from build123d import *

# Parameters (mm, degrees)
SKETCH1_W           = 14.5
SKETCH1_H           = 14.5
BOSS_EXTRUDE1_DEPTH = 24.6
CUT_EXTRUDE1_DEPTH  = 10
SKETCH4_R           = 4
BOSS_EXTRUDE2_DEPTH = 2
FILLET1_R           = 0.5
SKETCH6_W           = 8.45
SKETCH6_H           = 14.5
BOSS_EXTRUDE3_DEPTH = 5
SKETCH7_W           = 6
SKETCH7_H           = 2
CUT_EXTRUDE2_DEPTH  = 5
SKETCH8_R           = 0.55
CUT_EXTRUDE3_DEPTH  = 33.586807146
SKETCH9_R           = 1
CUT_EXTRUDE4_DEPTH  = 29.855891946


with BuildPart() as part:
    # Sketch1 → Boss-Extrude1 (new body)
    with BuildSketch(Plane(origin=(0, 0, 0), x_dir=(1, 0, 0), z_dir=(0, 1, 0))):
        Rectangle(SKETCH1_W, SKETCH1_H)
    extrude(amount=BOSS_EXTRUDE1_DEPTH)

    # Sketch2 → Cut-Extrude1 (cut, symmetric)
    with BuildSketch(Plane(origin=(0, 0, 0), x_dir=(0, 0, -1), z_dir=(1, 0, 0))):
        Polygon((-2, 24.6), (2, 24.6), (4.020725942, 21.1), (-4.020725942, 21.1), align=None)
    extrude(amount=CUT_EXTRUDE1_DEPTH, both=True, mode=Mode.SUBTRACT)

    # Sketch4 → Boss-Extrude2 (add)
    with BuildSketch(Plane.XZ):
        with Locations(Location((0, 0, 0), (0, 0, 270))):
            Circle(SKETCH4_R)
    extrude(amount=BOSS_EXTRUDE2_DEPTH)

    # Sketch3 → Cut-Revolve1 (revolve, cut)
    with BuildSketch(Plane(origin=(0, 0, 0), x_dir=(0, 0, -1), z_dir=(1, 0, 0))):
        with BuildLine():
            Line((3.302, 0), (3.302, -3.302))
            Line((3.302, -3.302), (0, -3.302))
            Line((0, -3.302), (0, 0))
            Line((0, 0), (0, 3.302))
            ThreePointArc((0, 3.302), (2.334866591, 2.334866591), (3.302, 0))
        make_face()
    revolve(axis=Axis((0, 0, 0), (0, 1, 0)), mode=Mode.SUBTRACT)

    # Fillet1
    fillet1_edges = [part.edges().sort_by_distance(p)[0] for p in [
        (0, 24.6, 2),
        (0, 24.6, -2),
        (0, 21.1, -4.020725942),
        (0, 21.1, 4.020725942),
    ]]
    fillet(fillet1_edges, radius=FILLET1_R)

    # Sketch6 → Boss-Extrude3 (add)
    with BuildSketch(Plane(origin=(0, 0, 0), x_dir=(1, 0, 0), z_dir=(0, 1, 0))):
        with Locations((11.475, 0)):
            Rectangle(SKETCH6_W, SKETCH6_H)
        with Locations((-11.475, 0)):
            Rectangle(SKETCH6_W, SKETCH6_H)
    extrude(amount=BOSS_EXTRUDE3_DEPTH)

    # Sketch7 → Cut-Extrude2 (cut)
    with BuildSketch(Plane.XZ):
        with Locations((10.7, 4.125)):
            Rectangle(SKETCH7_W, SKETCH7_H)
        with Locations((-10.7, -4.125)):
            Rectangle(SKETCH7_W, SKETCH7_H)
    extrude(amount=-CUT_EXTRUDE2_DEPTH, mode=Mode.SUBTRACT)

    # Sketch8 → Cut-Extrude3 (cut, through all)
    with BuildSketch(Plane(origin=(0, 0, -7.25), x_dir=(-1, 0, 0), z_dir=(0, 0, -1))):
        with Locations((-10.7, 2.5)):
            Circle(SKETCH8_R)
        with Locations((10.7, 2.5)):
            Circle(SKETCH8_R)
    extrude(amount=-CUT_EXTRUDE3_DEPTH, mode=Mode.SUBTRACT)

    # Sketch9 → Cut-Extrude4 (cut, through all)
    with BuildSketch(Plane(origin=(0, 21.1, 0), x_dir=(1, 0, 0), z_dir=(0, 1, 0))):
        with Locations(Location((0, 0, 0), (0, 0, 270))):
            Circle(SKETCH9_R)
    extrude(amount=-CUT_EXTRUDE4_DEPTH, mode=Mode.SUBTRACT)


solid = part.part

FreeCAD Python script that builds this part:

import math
import FreeCAD as App
import Part
import Sketcher
from FreeCAD import Vector
Q = App.Units.Quantity


def edges_at(feature, points):
    """Names of the edges that pass closest to the given points."""
    edges = feature.Shape.Edges
    near = lambda p: min(range(len(edges)), key=lambda i: edges[i].distToShape(Part.Vertex(*p))[0])
    return sorted({f"Edge{near(p) + 1}" for p in points})

doc = App.newDocument("Part")
body = doc.addObject("PartDesign::Body", "Body")

# Sketch on XZ plane
sketch1 = body.newObject("Sketcher::SketchObject", "Sketch")
sketch1.AttachmentSupport = (doc.getObject("XZ_Plane"), [""])
sketch1.MapMode = "FlatFace"
sketch1.addGeometry(Part.LineSegment(Vector(-7.25, -7.25, 0), Vector(-7.25, 7.25, 0)), False)
sketch1.addGeometry(Part.LineSegment(Vector(-7.25, 7.25, 0), Vector(7.25, 7.25, 0)), False)
sketch1.addGeometry(Part.LineSegment(Vector(7.25, 7.25, 0), Vector(7.25, -7.25, 0)), False)
sketch1.addGeometry(Part.LineSegment(Vector(7.25, -7.25, 0), Vector(-7.25, -7.25, 0)), False)
sketch1.addConstraint(Sketcher.Constraint("Coincident", 0, 2, 1, 1))
sketch1.addConstraint(Sketcher.Constraint("Coincident", 1, 2, 2, 1))
sketch1.addConstraint(Sketcher.Constraint("Coincident", 2, 2, 3, 1))
sketch1.addConstraint(Sketcher.Constraint("Coincident", 3, 2, 0, 1))
sketch1.addConstraint(Sketcher.Constraint("Vertical", 0))
sketch1.addConstraint(Sketcher.Constraint("Horizontal", 1))
sketch1.addConstraint(Sketcher.Constraint("Vertical", 2))
sketch1.addConstraint(Sketcher.Constraint("Horizontal", 3))
sketch1.addConstraint(Sketcher.Constraint("Symmetric", 0, 2, 2, 2, -1, 1))
sketch1.addConstraint(Sketcher.Constraint("Equal", 3, 0))
sketch1.addConstraint(Sketcher.Constraint("DistanceX", 1, 1, 1, 2, Q("14.5 mm")))
pad1 = body.newObject("PartDesign::Pad", "Pad")
pad1.Profile = sketch1
pad1.Length = 24.6
pad1.Reversed = True

# Sketch on YZ plane
sketch2 = body.newObject("Sketcher::SketchObject", "Sketch001")
sketch2.AttachmentSupport = (doc.getObject("YZ_Plane"), [""])
sketch2.MapMode = "FlatFace"
sketch2.addGeometry(Part.LineSegment(Vector(24.6, -2, 0), Vector(24.6, 2, 0)), False)
sketch2.addGeometry(Part.LineSegment(Vector(24.6, 2, 0), Vector(21.1, 4.020726, 0)), False)
sketch2.addGeometry(Part.LineSegment(Vector(21.1, 4.020726, 0), Vector(21.1, -4.020726, 0)), False)
sketch2.addGeometry(Part.LineSegment(Vector(21.1, -4.020726, 0), Vector(24.6, -2, 0)), False)
sketch2.addConstraint(Sketcher.Constraint("Coincident", 0, 2, 1, 1))
sketch2.addConstraint(Sketcher.Constraint("Coincident", 1, 2, 2, 1))
sketch2.addConstraint(Sketcher.Constraint("Coincident", 2, 2, 3, 1))
sketch2.addConstraint(Sketcher.Constraint("Coincident", 3, 2, 0, 1))
sketch2.addConstraint(Sketcher.Constraint("Vertical", 0))
sketch2.addConstraint(Sketcher.Constraint("Vertical", 2))
sketch2.addConstraint(Sketcher.Constraint("Equal", 1, 3))
sketch2.addConstraint(Sketcher.Constraint("DistanceY", 0, 1, 0, 2, Q("4 mm")))
sketch2.addConstraint(Sketcher.Constraint("Angle", 1, Q("150 deg")))
sketch2.addConstraint(Sketcher.Constraint("DistanceY", -1, 1, 0, 2, Q("2 mm")))
sketch2.addConstraint(Sketcher.Constraint("DistanceX", -1, 1, 0, 2, Q("24.6 mm")))
sketch2.addConstraint(Sketcher.Constraint("DistanceX", -1, 1, 1, 2, Q("21.1 mm")))
pocket1 = body.newObject("PartDesign::Pocket", "Pocket")
pocket1.Profile = sketch2
pocket1.Length = 20
pocket1.Midplane = True

# Sketch on XZ plane
sketch3 = body.newObject("Sketcher::SketchObject", "Sketch002")
sketch3.AttachmentSupport = (doc.getObject("XZ_Plane"), [""])
sketch3.MapMode = "FlatFace"
sketch3.addGeometry(Part.Circle(Vector(0, 0, 0), Vector(0, 0, 1), 4), False)
sketch3.addConstraint(Sketcher.Constraint("Coincident", 0, 3, -1, 1))
sketch3.addConstraint(Sketcher.Constraint("Diameter", 0, Q("8 mm")))
pad2 = body.newObject("PartDesign::Pad", "Pad001")
pad2.Profile = sketch3
pad2.Length = 2

# Sketch on YZ plane
sketch4 = body.newObject("Sketcher::SketchObject", "Sketch003")
sketch4.AttachmentSupport = (doc.getObject("YZ_Plane"), [""])
sketch4.MapMode = "FlatFace"
sketch4.addGeometry(Part.LineSegment(Vector(-3.302, -3.302, 0), Vector(0, -3.302, 0)), False)
sketch4.addGeometry(Part.ArcOfCircle(Part.Circle(Vector(0, 0, 0), Vector(0, 0, 1), 3.302), math.radians(-90), math.radians(0)), False)
sketch4.addGeometry(Part.LineSegment(Vector(3.302, 0, 0), Vector(-3.302, 0, 0)), False)
sketch4.addGeometry(Part.LineSegment(Vector(-3.302, 0, 0), Vector(-3.302, -3.302, 0)), False)
sketch4.addConstraint(Sketcher.Constraint("Tangent", 0, 2, 1, 1))
sketch4.addConstraint(Sketcher.Constraint("Coincident", 1, 2, 2, 1))
sketch4.addConstraint(Sketcher.Constraint("Coincident", 2, 2, 3, 1))
sketch4.addConstraint(Sketcher.Constraint("Coincident", 3, 2, 0, 1))
sketch4.addConstraint(Sketcher.Constraint("Horizontal", 0))
sketch4.addConstraint(Sketcher.Constraint("Horizontal", 2))
sketch4.addConstraint(Sketcher.Constraint("Vertical", 3))
sketch4.addConstraint(Sketcher.Constraint("Coincident", 1, 3, -1, 1))
sketch4.addConstraint(Sketcher.Constraint("Symmetric", 1, 2, 2, 2, -1, 1))
sketch4.addConstraint(Sketcher.Constraint("Radius", 1, Q("3.302 mm")))
groove = body.newObject("PartDesign::Groove", "Groove")
groove.Profile = sketch4
groove.ReferenceAxis = (sketch4, ["H_Axis"])
groove.Angle = 360
doc.recompute()

fillet = body.newObject("PartDesign::Fillet", "Fillet")
fillet.Base = (groove, edges_at(groove, [
    (0, 24.6, 2),
    (0, 24.6, -2),
    (0, 21.1, -4.021),
    (0, 21.1, 4.021),
]))
fillet.Radius = 0.5

# Sketch on XZ plane
sketch5 = body.newObject("Sketcher::SketchObject", "Sketch004")
sketch5.AttachmentSupport = (doc.getObject("XZ_Plane"), [""])
sketch5.MapMode = "FlatFace"
sketch5.addGeometry(Part.LineSegment(Vector(7.25, -7.25, 0), Vector(7.25, 7.25, 0)), False)
sketch5.addGeometry(Part.LineSegment(Vector(7.25, 7.25, 0), Vector(15.7, 7.25, 0)), False)
sketch5.addGeometry(Part.LineSegment(Vector(15.7, 7.25, 0), Vector(15.7, -7.25, 0)), False)
sketch5.addGeometry(Part.LineSegment(Vector(15.7, -7.25, 0), Vector(7.25, -7.25, 0)), False)
sketch5.addGeometry(Part.LineSegment(Vector(-15.7, -7.25, 0), Vector(-15.7, 7.25, 0)), False)
sketch5.addGeometry(Part.LineSegment(Vector(-15.7, 7.25, 0), Vector(-7.25, 7.25, 0)), False)
sketch5.addGeometry(Part.LineSegment(Vector(-7.25, 7.25, 0), Vector(-7.25, -7.25, 0)), False)
sketch5.addGeometry(Part.LineSegment(Vector(-7.25, -7.25, 0), Vector(-15.7, -7.25, 0)), False)
sketch5.addConstraint(Sketcher.Constraint("Coincident", 0, 2, 1, 1))
sketch5.addConstraint(Sketcher.Constraint("Coincident", 1, 2, 2, 1))
sketch5.addConstraint(Sketcher.Constraint("Coincident", 2, 2, 3, 1))
sketch5.addConstraint(Sketcher.Constraint("Coincident", 3, 2, 0, 1))
sketch5.addConstraint(Sketcher.Constraint("Coincident", 4, 2, 5, 1))
sketch5.addConstraint(Sketcher.Constraint("Coincident", 5, 2, 6, 1))
sketch5.addConstraint(Sketcher.Constraint("Coincident", 6, 2, 7, 1))
sketch5.addConstraint(Sketcher.Constraint("Coincident", 7, 2, 4, 1))
sketch5.addConstraint(Sketcher.Constraint("Vertical", 0))
sketch5.addConstraint(Sketcher.Constraint("Horizontal", 1))
sketch5.addConstraint(Sketcher.Constraint("Vertical", 2))
sketch5.addConstraint(Sketcher.Constraint("Horizontal", 3))
sketch5.addConstraint(Sketcher.Constraint("Vertical", 4))
sketch5.addConstraint(Sketcher.Constraint("Horizontal", 5))
sketch5.addConstraint(Sketcher.Constraint("Vertical", 6))
sketch5.addConstraint(Sketcher.Constraint("Horizontal", 7))
sketch5.addConstraint(Sketcher.Constraint("Symmetric", 2, 2, 4, 2, -1, 1))
sketch5.addConstraint(Sketcher.Constraint("Symmetric", 0, 2, 6, 2, -1, 1))
sketch5.addConstraint(Sketcher.Constraint("Horizontal", 1, 2, 4, 2))
sketch5.addConstraint(Sketcher.Constraint("DistanceY", 0, 1, 0, 2, Q("14.5 mm")))
sketch5.addConstraint(Sketcher.Constraint("DistanceX", 1, 1, 1, 2, Q("8.45 mm")))
sketch5.addConstraint(Sketcher.Constraint("DistanceX", -1, 1, 1, 2, Q("15.7 mm")))
pad3 = body.newObject("PartDesign::Pad", "Pad002")
pad3.Profile = sketch5
pad3.Length = 5
pad3.Reversed = True

# Sketch on XZ plane
sketch6 = body.newObject("Sketcher::SketchObject", "Sketch005")
sketch6.AttachmentSupport = (doc.getObject("XZ_Plane"), [""])
sketch6.MapMode = "FlatFace"
sketch6.addGeometry(Part.LineSegment(Vector(7.7, 5.125, 0), Vector(7.7, 3.125, 0)), False)
sketch6.addGeometry(Part.LineSegment(Vector(7.7, 3.125, 0), Vector(13.7, 3.125, 0)), False)
sketch6.addGeometry(Part.LineSegment(Vector(13.7, 3.125, 0), Vector(13.7, 5.125, 0)), False)
sketch6.addGeometry(Part.LineSegment(Vector(13.7, 5.125, 0), Vector(7.7, 5.125, 0)), False)
sketch6.addGeometry(Part.LineSegment(Vector(-13.7, -3.125, 0), Vector(-13.7, -5.125, 0)), False)
sketch6.addGeometry(Part.LineSegment(Vector(-13.7, -5.125, 0), Vector(-7.7, -5.125, 0)), False)
sketch6.addGeometry(Part.LineSegment(Vector(-7.7, -5.125, 0), Vector(-7.7, -3.125, 0)), False)
sketch6.addGeometry(Part.LineSegment(Vector(-7.7, -3.125, 0), Vector(-13.7, -3.125, 0)), False)
sketch6.addConstraint(Sketcher.Constraint("Coincident", 0, 2, 1, 1))
sketch6.addConstraint(Sketcher.Constraint("Coincident", 1, 2, 2, 1))
sketch6.addConstraint(Sketcher.Constraint("Coincident", 2, 2, 3, 1))
sketch6.addConstraint(Sketcher.Constraint("Coincident", 3, 2, 0, 1))
sketch6.addConstraint(Sketcher.Constraint("Coincident", 4, 2, 5, 1))
sketch6.addConstraint(Sketcher.Constraint("Coincident", 5, 2, 6, 1))
sketch6.addConstraint(Sketcher.Constraint("Coincident", 6, 2, 7, 1))
sketch6.addConstraint(Sketcher.Constraint("Coincident", 7, 2, 4, 1))
sketch6.addConstraint(Sketcher.Constraint("Vertical", 0))
sketch6.addConstraint(Sketcher.Constraint("Horizontal", 1))
sketch6.addConstraint(Sketcher.Constraint("Vertical", 2))
sketch6.addConstraint(Sketcher.Constraint("Horizontal", 3))
sketch6.addConstraint(Sketcher.Constraint("Vertical", 4))
sketch6.addConstraint(Sketcher.Constraint("Horizontal", 5))
sketch6.addConstraint(Sketcher.Constraint("Vertical", 6))
sketch6.addConstraint(Sketcher.Constraint("Horizontal", 7))
sketch6.addConstraint(Sketcher.Constraint("Symmetric", 2, 2, 4, 2, -1, 1))
sketch6.addConstraint(Sketcher.Constraint("Symmetric", 0, 2, 6, 2, -1, 1))
sketch6.addConstraint(Sketcher.Constraint("DistanceX", 1, 1, 1, 2, Q("6 mm")))
sketch6.addConstraint(Sketcher.Constraint("DistanceY", 0, 2, 0, 1, Q("2 mm")))
sketch6.addConstraint(Sketcher.Constraint("DistanceX", -1, 1, 0, 2, Q("7.7 mm")))
sketch6.addConstraint(Sketcher.Constraint("DistanceY", 4, 2, 0, 2, Q("8.25 mm")))
pocket2 = body.newObject("PartDesign::Pocket", "Pocket001")
pocket2.Profile = sketch6
pocket2.Length = 5

# Sketch on XY plane
sketch7 = body.newObject("Sketcher::SketchObject", "Sketch006")
sketch7.AttachmentSupport = (doc.getObject("XY_Plane"), [""])
sketch7.MapMode = "FlatFace"
sketch7.AttachmentOffset = App.Placement(Vector(0, 0, -7.25), App.Rotation())
sketch7.addGeometry(Part.Circle(Vector(10.7, 2.5, 0), Vector(0, 0, 1), 0.55), False)
sketch7.addGeometry(Part.Circle(Vector(-10.7, 2.5, 0), Vector(0, 0, 1), 0.55), False)
sketch7.addConstraint(Sketcher.Constraint("Equal", 0, 1))
sketch7.addConstraint(Sketcher.Constraint("Symmetric", 0, 3, 1, 3, -2))
sketch7.addConstraint(Sketcher.Constraint("Diameter", 0, Q("1.1 mm")))
sketch7.addConstraint(Sketcher.Constraint("DistanceX", -1, 1, 0, 3, Q("10.7 mm")))
sketch7.addConstraint(Sketcher.Constraint("DistanceY", -1, 1, 0, 3, Q("2.5 mm")))
pocket3 = body.newObject("PartDesign::Pocket", "Pocket002")
pocket3.Profile = sketch7
pocket3.Type = "ThroughAll"
pocket3.Reversed = True

# Sketch on XZ plane
sketch8 = body.newObject("Sketcher::SketchObject", "Sketch007")
sketch8.AttachmentSupport = (doc.getObject("XZ_Plane"), [""])
sketch8.MapMode = "FlatFace"
sketch8.AttachmentOffset = App.Placement(Vector(0, 0, -21.1), App.Rotation())
sketch8.addGeometry(Part.Circle(Vector(0, 0, 0), Vector(0, 0, 1), 1), False)
sketch8.addConstraint(Sketcher.Constraint("Coincident", 0, 3, -1, 1))
sketch8.addConstraint(Sketcher.Constraint("Diameter", 0, Q("2 mm")))
pocket4 = body.newObject("PartDesign::Pocket", "Pocket003")
pocket4.Profile = sketch8
pocket4.Type = "ThroughAll"
pocket4.Reversed = True

doc.recompute()
